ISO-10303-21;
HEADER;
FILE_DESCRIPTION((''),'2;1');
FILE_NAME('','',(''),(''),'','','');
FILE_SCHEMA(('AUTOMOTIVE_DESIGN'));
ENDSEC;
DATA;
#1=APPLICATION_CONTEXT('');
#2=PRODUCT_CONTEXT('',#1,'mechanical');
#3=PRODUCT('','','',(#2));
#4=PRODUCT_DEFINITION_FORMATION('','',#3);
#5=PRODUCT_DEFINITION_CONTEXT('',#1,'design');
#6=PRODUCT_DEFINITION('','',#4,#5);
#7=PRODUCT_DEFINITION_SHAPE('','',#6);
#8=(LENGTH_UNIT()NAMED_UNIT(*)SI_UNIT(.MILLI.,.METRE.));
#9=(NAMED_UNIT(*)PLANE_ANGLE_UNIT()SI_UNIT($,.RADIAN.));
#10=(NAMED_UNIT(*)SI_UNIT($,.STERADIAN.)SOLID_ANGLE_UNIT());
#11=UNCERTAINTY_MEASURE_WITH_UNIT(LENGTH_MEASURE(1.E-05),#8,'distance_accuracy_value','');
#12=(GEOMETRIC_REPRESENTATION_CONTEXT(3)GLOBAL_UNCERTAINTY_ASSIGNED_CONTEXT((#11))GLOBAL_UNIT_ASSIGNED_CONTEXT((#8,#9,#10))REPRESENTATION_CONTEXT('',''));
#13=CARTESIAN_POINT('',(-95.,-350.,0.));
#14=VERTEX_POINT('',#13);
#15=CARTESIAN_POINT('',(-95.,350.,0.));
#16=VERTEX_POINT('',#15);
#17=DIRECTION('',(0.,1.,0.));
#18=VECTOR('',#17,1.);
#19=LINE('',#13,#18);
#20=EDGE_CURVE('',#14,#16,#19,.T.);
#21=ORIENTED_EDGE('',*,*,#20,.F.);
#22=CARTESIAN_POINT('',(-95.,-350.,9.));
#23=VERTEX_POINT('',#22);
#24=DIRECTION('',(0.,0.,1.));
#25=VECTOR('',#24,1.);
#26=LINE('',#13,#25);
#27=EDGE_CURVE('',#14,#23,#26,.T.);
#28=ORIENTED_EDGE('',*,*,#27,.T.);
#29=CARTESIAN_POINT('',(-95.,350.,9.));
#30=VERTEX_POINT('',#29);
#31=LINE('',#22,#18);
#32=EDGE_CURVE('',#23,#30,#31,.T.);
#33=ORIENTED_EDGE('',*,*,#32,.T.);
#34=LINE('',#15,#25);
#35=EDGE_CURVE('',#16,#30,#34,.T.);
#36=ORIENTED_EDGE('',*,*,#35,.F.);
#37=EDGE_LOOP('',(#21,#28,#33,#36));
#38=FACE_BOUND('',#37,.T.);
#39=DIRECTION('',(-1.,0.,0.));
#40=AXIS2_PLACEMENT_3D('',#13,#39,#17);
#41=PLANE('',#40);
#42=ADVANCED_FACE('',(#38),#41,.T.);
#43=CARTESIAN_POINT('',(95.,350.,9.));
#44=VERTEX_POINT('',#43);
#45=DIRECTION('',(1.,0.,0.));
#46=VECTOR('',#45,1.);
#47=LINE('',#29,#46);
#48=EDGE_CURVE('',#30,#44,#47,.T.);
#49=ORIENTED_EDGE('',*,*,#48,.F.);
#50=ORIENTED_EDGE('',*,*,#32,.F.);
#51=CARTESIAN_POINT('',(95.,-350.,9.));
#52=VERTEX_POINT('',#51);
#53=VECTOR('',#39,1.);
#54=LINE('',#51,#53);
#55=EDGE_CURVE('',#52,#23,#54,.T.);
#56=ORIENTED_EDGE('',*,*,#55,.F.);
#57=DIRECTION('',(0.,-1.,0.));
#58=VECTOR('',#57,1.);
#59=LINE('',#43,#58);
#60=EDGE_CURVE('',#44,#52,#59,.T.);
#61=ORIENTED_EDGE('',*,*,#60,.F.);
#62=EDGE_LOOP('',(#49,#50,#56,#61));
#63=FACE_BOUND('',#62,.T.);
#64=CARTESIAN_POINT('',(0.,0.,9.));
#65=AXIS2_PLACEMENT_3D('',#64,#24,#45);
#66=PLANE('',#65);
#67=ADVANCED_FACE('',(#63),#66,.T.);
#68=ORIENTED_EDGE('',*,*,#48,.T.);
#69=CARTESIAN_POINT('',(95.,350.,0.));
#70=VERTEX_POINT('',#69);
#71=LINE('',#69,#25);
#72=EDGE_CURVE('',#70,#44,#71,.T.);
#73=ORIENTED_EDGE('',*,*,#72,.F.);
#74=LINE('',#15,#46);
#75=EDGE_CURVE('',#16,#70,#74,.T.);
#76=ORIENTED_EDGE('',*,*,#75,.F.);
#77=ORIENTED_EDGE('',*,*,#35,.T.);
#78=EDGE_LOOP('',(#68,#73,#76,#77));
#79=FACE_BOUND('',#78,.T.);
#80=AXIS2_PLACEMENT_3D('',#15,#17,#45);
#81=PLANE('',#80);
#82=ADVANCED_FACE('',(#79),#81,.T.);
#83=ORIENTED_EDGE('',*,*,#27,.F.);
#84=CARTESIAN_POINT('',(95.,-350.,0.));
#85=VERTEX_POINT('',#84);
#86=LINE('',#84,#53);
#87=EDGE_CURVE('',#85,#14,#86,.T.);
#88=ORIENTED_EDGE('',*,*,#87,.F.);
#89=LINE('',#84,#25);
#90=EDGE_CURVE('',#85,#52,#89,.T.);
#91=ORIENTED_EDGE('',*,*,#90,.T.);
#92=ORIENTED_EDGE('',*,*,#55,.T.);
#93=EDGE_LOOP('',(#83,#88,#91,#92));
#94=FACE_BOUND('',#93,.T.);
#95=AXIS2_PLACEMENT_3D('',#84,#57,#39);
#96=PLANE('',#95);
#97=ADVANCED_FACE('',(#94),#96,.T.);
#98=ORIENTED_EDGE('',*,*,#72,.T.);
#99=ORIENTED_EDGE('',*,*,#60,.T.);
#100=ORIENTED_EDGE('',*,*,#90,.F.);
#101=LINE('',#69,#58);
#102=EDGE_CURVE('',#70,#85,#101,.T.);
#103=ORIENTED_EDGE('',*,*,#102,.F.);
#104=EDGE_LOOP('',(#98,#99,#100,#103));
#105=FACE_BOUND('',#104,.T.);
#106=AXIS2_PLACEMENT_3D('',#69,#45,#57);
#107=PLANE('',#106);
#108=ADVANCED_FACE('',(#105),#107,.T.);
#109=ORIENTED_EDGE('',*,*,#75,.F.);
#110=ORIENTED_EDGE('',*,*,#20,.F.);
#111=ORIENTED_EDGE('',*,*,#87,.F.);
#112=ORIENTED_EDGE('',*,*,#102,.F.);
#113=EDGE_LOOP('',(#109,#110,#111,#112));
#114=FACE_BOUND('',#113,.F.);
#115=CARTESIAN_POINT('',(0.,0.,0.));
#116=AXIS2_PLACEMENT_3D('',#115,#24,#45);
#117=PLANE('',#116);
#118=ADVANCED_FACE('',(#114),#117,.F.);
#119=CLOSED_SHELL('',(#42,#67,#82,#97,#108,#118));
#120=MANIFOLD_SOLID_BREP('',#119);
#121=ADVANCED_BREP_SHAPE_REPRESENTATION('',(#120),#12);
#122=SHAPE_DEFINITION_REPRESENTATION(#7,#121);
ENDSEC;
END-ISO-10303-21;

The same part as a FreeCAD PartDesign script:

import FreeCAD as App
import Part
import Sketcher
from FreeCAD import Vector

doc = App.newDocument("Part")
params = doc.addObject("Spreadsheet::Sheet", "Params")
for row, (alias, value) in enumerate([
    ("sketch1_width", "190 mm"),
    ("sketch1_height", "700 mm"),
    ("pad1_length", "9 mm"),
], start=1):
    params.set(f"A{row}", alias)
    params.set(f"B{row}", "=" + value)
    params.setAlias(f"B{row}", alias)

body = doc.addObject("PartDesign::Body", "Body")

# Sketch on XY plane
sketch1 = body.newObject("Sketcher::SketchObject", "Sketch")
sketch1.AttachmentSupport = (doc.getObject("XY_Plane"), [""])
sketch1.MapMode = "FlatFace"
sketch1.addGeometry([
    Part.LineSegment(Vector(-95, -350, 0), Vector(95, -350, 0)),
    Part.LineSegment(Vector(95, -350, 0), Vector(95, 350, 0)),
    Part.LineSegment(Vector(95, 350, 0), Vector(-95, 350, 0)),
    Part.LineSegment(Vector(-95, 350, 0), Vector(-95, -350, 0)),
], False)
sketch1.addConstraint([
    Sketcher.Constraint("Coincident", 0, 2, 1, 1),
    Sketcher.Constraint("Coincident", 1, 2, 2, 1),
    Sketcher.Constraint("Coincident", 2, 2, 3, 1),
    Sketcher.Constraint("Coincident", 3, 2, 0, 1),
    Sketcher.Constraint("Horizontal", 0),
    Sketcher.Constraint("Vertical", 1),
    Sketcher.Constraint("Horizontal", 2),
    Sketcher.Constraint("Vertical", 3),
    Sketcher.Constraint("Symmetric", 0, 2, 2, 2, -1, 1),
    Sketcher.Constraint("DistanceX", 0, 1, 0, 2, 190.0),
    Sketcher.Constraint("DistanceY", 1, 1, 1, 2, 700.0),
])
sketch1.setExpression("Constraints[9]", "Params.sketch1_width")
sketch1.setExpression("Constraints[10]", "Params.sketch1_height")
pad1 = body.newObject("PartDesign::Pad", "Pad")
pad1.Profile = sketch1
pad1.setExpression("Length", "Params.pad1_length")

doc.recompute()
